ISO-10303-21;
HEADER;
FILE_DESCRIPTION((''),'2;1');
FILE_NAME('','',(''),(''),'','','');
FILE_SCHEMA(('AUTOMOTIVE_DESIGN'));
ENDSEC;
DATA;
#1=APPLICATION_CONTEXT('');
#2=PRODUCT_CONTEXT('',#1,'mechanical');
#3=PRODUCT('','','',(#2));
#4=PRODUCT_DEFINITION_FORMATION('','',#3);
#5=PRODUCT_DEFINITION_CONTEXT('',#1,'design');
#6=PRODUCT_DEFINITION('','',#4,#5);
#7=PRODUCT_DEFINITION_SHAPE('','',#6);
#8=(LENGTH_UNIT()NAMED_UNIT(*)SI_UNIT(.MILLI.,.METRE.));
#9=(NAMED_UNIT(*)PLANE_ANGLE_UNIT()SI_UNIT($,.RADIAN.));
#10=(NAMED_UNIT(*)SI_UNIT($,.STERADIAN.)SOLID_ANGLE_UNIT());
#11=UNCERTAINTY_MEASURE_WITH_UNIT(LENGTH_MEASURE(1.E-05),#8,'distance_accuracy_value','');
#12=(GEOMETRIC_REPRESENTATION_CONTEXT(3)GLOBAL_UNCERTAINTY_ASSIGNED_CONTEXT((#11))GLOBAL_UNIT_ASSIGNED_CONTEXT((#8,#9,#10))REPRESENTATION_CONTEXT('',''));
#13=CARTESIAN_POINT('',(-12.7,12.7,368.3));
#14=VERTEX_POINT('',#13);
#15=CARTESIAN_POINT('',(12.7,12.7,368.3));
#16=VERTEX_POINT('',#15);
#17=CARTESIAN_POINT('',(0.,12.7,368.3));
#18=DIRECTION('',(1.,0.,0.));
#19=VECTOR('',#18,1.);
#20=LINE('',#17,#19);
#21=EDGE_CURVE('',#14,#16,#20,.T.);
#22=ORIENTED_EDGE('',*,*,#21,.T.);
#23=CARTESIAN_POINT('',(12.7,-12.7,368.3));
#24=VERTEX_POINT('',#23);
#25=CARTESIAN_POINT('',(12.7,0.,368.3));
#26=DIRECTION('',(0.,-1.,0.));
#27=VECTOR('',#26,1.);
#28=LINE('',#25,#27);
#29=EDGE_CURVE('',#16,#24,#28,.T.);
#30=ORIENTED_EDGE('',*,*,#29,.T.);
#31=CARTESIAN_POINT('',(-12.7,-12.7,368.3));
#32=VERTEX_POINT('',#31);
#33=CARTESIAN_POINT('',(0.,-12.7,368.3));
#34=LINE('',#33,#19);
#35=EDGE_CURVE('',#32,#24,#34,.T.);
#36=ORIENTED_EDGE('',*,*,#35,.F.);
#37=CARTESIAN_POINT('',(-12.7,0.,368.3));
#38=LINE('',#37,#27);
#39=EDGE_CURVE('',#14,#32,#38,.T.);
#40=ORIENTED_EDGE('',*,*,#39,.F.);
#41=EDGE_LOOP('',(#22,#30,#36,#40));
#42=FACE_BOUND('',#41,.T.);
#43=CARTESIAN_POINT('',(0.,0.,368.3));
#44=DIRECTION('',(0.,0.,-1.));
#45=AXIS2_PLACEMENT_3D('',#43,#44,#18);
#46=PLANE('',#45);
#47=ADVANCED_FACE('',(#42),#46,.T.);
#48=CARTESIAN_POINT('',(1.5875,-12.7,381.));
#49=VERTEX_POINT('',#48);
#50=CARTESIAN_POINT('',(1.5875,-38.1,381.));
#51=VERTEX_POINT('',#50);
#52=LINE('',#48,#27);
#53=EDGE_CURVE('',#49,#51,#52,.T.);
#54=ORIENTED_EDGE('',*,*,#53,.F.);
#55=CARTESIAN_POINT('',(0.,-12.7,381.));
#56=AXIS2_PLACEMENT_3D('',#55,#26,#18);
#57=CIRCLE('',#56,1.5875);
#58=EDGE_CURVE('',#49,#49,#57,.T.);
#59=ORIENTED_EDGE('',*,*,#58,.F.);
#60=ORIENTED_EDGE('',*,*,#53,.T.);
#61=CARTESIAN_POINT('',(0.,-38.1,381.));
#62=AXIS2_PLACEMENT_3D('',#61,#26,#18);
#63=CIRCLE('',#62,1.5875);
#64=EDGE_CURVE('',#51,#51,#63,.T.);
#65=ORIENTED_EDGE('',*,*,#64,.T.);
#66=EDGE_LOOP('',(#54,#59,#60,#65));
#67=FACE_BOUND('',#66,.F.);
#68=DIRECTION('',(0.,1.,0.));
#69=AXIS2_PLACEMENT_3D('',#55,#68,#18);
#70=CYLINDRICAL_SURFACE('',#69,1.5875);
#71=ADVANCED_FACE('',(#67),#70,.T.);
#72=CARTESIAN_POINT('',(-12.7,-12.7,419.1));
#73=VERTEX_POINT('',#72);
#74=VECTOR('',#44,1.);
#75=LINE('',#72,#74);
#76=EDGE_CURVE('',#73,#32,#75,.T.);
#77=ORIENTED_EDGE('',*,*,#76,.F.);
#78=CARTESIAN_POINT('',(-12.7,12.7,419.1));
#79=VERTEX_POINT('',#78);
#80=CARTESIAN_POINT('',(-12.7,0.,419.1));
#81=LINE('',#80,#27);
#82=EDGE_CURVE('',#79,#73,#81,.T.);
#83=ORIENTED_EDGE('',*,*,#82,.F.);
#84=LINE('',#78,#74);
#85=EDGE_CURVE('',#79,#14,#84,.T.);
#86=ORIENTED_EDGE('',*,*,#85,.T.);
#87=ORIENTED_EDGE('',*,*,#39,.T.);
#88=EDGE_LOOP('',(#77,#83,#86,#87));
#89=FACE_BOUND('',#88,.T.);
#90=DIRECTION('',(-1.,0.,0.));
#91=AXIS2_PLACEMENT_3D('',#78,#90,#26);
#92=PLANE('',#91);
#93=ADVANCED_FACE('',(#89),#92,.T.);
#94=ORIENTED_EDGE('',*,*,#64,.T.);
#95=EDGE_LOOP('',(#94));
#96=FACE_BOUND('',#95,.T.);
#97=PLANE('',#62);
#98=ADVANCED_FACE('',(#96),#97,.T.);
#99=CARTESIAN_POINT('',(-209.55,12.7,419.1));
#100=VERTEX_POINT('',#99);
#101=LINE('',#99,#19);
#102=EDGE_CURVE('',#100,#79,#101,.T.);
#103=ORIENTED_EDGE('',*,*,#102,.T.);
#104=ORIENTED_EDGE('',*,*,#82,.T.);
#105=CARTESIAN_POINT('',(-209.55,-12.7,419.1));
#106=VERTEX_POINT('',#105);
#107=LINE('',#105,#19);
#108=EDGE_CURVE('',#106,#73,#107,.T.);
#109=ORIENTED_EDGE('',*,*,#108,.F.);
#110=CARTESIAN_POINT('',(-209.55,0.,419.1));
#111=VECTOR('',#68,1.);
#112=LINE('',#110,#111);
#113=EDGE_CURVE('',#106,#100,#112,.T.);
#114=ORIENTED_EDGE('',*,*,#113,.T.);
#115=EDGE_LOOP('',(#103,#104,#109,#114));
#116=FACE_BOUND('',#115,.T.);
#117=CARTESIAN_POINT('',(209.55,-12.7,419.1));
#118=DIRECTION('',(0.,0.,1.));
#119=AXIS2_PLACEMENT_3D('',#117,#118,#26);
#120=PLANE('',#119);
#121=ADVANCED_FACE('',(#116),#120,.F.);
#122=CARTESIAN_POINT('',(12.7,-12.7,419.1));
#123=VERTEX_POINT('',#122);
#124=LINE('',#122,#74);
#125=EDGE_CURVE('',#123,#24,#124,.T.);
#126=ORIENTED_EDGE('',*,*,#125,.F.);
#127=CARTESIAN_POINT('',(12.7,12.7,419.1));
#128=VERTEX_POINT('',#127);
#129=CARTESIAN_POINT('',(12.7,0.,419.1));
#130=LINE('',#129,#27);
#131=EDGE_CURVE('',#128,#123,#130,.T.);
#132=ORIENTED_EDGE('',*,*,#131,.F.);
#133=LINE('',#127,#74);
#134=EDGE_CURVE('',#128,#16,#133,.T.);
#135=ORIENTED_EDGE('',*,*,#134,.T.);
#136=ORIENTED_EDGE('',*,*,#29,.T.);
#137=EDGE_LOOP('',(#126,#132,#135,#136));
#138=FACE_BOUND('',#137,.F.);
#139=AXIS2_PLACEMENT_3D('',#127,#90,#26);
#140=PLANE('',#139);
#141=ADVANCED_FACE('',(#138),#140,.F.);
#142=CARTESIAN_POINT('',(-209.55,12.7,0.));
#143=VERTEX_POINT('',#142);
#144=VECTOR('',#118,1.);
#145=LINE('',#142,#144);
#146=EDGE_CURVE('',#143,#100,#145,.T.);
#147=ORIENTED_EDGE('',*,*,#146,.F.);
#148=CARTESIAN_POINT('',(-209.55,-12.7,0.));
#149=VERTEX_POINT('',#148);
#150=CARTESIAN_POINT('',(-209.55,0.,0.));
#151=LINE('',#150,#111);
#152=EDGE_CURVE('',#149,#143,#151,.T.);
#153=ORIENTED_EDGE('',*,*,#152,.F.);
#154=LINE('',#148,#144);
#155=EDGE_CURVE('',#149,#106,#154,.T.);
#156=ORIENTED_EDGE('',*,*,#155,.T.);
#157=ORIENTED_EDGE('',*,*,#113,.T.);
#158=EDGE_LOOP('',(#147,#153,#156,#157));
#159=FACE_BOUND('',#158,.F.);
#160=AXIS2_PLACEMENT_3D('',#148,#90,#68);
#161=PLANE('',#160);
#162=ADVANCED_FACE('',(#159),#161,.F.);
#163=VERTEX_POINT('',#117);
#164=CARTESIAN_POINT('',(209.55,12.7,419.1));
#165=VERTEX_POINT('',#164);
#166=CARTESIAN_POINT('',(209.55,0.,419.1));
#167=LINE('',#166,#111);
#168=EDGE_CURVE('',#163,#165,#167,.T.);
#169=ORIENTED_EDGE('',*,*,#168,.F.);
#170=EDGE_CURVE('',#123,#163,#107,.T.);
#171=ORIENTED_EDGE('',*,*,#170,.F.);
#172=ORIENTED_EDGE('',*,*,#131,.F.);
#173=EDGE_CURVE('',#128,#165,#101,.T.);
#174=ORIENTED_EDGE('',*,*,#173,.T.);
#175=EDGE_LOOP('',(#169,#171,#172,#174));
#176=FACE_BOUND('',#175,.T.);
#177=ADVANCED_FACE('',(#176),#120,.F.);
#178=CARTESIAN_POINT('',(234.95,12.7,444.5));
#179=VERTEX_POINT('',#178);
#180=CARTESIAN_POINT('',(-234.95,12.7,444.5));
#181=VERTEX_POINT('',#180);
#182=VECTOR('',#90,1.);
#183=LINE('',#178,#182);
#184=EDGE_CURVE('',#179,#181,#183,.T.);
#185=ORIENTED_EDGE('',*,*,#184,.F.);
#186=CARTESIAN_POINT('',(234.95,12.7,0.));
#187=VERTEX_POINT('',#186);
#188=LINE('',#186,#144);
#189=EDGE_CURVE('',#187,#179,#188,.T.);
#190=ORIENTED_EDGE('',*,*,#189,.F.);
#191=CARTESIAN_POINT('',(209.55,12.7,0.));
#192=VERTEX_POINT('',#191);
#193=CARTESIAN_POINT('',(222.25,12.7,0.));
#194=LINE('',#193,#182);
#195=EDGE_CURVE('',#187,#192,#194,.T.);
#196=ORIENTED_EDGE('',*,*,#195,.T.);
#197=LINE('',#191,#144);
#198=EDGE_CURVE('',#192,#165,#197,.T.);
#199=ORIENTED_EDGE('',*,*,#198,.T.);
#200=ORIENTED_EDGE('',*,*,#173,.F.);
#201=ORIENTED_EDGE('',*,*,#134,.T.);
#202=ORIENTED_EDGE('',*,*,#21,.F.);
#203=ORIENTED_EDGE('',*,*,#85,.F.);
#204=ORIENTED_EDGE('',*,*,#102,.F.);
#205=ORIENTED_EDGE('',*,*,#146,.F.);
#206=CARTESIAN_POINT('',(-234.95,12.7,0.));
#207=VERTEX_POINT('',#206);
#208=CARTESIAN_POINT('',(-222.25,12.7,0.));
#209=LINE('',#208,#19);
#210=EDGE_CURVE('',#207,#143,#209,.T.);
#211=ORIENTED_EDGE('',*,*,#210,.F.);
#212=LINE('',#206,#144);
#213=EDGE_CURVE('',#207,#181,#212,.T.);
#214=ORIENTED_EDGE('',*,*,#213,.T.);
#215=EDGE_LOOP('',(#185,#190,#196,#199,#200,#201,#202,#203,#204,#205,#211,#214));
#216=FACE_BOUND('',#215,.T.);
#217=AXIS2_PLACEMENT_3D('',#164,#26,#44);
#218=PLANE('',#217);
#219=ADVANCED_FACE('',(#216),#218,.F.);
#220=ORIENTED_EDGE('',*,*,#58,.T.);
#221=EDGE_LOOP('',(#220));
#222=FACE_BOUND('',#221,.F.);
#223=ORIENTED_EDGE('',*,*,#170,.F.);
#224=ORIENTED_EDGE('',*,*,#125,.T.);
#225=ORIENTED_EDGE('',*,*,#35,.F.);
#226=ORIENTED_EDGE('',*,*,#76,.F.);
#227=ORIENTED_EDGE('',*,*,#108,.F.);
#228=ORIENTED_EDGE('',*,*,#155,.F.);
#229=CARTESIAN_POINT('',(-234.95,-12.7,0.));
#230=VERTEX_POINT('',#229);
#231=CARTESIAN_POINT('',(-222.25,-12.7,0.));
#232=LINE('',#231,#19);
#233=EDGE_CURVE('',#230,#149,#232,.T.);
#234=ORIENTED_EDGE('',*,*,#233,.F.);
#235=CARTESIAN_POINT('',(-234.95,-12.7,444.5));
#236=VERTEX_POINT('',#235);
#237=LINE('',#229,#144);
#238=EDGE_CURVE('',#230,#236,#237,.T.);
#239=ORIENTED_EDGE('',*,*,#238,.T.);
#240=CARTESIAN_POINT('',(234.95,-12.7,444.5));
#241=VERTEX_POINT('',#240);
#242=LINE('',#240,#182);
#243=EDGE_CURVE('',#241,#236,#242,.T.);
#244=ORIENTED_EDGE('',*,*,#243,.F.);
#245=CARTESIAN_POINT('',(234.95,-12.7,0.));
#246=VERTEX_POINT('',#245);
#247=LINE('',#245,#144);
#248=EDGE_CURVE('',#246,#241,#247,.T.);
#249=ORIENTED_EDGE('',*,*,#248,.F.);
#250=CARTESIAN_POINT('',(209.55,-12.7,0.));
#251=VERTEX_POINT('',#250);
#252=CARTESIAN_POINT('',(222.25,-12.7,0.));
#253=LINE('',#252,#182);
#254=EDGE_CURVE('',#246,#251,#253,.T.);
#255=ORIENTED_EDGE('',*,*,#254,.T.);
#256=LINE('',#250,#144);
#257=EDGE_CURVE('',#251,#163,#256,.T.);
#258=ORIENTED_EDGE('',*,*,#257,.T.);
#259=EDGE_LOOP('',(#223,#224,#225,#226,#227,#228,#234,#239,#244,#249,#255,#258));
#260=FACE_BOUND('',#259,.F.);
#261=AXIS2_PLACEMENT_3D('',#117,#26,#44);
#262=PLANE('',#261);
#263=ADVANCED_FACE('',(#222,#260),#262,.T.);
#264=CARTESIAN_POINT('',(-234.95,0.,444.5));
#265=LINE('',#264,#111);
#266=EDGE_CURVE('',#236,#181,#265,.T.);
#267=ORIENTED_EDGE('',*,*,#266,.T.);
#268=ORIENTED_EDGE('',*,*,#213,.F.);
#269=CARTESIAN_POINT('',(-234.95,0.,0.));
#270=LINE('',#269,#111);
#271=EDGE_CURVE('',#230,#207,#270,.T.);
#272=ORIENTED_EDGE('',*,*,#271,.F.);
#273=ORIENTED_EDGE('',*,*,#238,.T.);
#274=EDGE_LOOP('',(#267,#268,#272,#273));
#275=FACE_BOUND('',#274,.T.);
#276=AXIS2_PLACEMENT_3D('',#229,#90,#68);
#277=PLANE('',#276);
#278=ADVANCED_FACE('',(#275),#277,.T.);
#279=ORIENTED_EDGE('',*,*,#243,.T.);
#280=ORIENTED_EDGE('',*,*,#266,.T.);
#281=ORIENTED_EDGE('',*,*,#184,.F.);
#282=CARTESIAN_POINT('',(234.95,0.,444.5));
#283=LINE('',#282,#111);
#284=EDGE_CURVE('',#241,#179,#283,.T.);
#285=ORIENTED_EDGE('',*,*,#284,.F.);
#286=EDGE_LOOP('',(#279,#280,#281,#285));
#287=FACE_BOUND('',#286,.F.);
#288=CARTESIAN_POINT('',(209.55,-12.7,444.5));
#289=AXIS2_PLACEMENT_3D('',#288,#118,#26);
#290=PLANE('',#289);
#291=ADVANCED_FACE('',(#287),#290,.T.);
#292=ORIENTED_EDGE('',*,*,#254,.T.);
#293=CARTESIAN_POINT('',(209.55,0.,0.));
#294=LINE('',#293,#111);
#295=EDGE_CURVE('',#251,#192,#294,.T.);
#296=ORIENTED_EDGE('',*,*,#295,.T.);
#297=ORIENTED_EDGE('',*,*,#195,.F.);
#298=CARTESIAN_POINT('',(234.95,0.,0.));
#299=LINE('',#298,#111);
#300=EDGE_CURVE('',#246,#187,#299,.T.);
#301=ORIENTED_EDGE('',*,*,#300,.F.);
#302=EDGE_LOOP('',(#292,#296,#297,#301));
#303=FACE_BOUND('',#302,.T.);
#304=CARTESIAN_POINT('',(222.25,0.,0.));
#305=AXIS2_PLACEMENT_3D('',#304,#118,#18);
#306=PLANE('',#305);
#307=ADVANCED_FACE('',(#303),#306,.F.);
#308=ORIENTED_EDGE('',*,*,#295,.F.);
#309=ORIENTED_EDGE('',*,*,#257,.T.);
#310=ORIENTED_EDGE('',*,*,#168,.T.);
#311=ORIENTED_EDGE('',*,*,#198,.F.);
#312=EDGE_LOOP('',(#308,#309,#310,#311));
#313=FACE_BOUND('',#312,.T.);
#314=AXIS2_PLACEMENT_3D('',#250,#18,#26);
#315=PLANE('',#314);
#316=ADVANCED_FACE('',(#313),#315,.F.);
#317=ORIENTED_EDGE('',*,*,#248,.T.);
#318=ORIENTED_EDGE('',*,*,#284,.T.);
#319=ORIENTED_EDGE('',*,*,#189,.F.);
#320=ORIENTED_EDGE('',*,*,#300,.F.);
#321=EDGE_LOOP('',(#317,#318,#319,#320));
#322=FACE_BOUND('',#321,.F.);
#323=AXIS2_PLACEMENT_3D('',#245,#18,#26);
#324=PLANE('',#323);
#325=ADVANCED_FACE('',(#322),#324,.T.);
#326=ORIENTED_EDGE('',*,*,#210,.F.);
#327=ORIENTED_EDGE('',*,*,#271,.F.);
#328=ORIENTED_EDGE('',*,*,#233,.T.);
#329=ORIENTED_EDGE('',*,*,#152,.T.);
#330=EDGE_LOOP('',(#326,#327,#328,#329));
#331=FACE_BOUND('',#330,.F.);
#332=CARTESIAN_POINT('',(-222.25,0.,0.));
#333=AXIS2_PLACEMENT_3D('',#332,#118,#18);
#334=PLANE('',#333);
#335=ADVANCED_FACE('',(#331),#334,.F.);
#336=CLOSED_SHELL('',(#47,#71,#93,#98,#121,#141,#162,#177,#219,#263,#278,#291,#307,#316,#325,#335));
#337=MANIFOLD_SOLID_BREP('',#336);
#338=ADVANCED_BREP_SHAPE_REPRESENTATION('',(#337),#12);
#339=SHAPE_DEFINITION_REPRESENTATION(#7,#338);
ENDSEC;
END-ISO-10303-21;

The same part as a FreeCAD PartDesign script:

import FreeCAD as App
import Part
import Sketcher

V = App.Vector
Q = App.Units.Quantity


def add_polygon(sketch, points):
    """Adds a closed chain of lines whose ends are joined by coincident constraints."""
    first, n = sketch.GeometryCount, len(points)
    for a, b in zip(points, points[1:] + points[:1]):
        sketch.addGeometry(Part.LineSegment(App.Vector(*a, 0), App.Vector(*b, 0)), False)
    for i in range(n):
        sketch.addConstraint(Sketcher.Constraint("Coincident", first + i, 2, first + (i + 1) % n, 1))

doc = App.newDocument("Part")
body = doc.addObject("PartDesign::Body", "Body")

# Sketch on XY plane
sketch1 = doc.addObject("Sketcher::SketchObject", "Sketch")
body.addObject(sketch1)
sketch1.AttachmentSupport = (doc.XY_Plane, [""])
sketch1.MapMode = "FlatFace"
add_polygon(sketch1, [(-235, 13), (-235, -13), (-210, -13), (-210, 13)])  # lines 0-3
sketch1.addConstraint([
    Sketcher.Constraint("Vertical", 0),
    Sketcher.Constraint("Horizontal", 1),
    Sketcher.Constraint("Vertical", 2),
    Sketcher.Constraint("Horizontal", 3),
    Sketcher.Constraint("Equal", 3, 0),
    Sketcher.Constraint("DistanceX", 1, 1, 1, 2, Q("1 in")),
    Sketcher.Constraint("DistanceY", 0, 2, -1, 1, Q("0.5 in")),
    Sketcher.Constraint("DistanceX", 0, 2, -1, 1, Q("9.25 in")),
])
pad1 = doc.addObject("PartDesign::Pad", "Pad")
body.addObject(pad1)
pad1.Profile = sketch1
pad1.Length = Q("17.5 in")

# Sketch on YZ plane
sketch2 = doc.addObject("Sketcher::SketchObject", "Sketch001")
body.addObject(sketch2)
sketch2.AttachmentSupport = (doc.YZ_Plane, [""])
sketch2.MapMode = "FlatFace"
sketch2.AttachmentOffset = App.Placement(V(0, 0, -8.25 * 25.4), App.Rotation())
add_polygon(sketch2, [(-13, 444), (-13, 419), (13, 419), (13, 444)])  # lines 0-3
sketch2.addConstraint([
    Sketcher.Constraint("Vertical", 0),
    Sketcher.Constraint("Horizontal", 1),
    Sketcher.Constraint("Vertical", 2),
    Sketcher.Constraint("Horizontal", 3),
    Sketcher.Constraint("Equal", 3, 0),
    Sketcher.Constraint("DistanceX", 1, 1, 1, 2, Q("1 in")),
    Sketcher.Constraint("DistanceX", 0, 2, -1, 1, Q("0.5 in")),
    Sketcher.Constraint("DistanceY", -1, 1, 0, 2, Q("16.5 in")),
])
pad2 = doc.addObject("PartDesign::Pad", "Pad001")
body.addObject(pad2)
pad2.Profile = sketch2
pad2.Length = Q("8.25 in")
body2 = doc.addObject("PartDesign::Body", "Body001")
doc.recompute()

body2.BaseFeature = body
doc.recompute()

mirroring = doc.addObject("Part::Mirroring", "Mirroring")
mirroring.Source = body
mirroring.Base = V(0, 0, 0)
mirroring.Normal = V(1, 0, 0)
body3 = doc.addObject("PartDesign::Body", "Body002")
body3.BaseFeature = mirroring
boolean = doc.addObject("PartDesign::Boolean", "Boolean")
body2.addObject(boolean)
boolean.Type = "Fuse"
boolean.addObjects([body3])
doc.recompute()

# Sketch on XY plane
sketch3 = doc.addObject("Sketcher::SketchObject", "Sketch002")
body2.addObject(sketch3)
sketch3.AttachmentSupport = (doc.getObject("XY_Plane001"), [""])
sketch3.MapMode = "FlatFace"
sketch3.AttachmentOffset = App.Placement(V(0, 0, 16.5 * 25.4), App.Rotation())
add_polygon(sketch3, [(-13, -13), (-13, 13), (13, 13), (13, -13)])  # lines 0-3
sketch3.addConstraint([
    Sketcher.Constraint("Vertical", 0),
    Sketcher.Constraint("Horizontal", 1),
    Sketcher.Constraint("Vertical", 2),
    Sketcher.Constraint("Horizontal", 3),
    Sketcher.Constraint("Symmetric", 0, 2, 2, 2, -1, 1),
    Sketcher.Constraint("Equal", 3, 0),
    Sketcher.Constraint("DistanceX", 1, 1, 1, 2, Q("1 in")),
])
pad3 = doc.addObject("PartDesign::Pad", "Pad002")
body2.addObject(pad3)
pad3.Profile = sketch3
pad3.Length = Q("2 in")
pad3.Reversed = True

# Sketch on XZ plane
sketch4 = doc.addObject("Sketcher::SketchObject", "Sketch003")
body2.addObject(sketch4)
sketch4.AttachmentSupport = (doc.getObject("XZ_Plane001"), [""])
sketch4.MapMode = "FlatFace"
sketch4.AttachmentOffset = App.Placement(V(0, 0, 0.5 * 25.4), App.Rotation())
sketch4.addGeometry(Part.Circle(V(0, 381, 0), V(0, 0, 1), 1.6), False)
sketch4.addConstraint([
    Sketcher.Constraint("PointOnObject", 0, 3, -2),
    Sketcher.Constraint("Diameter", 0, Q("0.125 in")),
    Sketcher.Constraint("DistanceY", -1, 1, 0, 3, Q("15 in")),
])
pad4 = doc.addObject("PartDesign::Pad", "Pad003")
body2.addObject(pad4)
pad4.Profile = sketch4
pad4.Length = Q("1 in")
mirroring.Visibility = False

doc.recompute()
